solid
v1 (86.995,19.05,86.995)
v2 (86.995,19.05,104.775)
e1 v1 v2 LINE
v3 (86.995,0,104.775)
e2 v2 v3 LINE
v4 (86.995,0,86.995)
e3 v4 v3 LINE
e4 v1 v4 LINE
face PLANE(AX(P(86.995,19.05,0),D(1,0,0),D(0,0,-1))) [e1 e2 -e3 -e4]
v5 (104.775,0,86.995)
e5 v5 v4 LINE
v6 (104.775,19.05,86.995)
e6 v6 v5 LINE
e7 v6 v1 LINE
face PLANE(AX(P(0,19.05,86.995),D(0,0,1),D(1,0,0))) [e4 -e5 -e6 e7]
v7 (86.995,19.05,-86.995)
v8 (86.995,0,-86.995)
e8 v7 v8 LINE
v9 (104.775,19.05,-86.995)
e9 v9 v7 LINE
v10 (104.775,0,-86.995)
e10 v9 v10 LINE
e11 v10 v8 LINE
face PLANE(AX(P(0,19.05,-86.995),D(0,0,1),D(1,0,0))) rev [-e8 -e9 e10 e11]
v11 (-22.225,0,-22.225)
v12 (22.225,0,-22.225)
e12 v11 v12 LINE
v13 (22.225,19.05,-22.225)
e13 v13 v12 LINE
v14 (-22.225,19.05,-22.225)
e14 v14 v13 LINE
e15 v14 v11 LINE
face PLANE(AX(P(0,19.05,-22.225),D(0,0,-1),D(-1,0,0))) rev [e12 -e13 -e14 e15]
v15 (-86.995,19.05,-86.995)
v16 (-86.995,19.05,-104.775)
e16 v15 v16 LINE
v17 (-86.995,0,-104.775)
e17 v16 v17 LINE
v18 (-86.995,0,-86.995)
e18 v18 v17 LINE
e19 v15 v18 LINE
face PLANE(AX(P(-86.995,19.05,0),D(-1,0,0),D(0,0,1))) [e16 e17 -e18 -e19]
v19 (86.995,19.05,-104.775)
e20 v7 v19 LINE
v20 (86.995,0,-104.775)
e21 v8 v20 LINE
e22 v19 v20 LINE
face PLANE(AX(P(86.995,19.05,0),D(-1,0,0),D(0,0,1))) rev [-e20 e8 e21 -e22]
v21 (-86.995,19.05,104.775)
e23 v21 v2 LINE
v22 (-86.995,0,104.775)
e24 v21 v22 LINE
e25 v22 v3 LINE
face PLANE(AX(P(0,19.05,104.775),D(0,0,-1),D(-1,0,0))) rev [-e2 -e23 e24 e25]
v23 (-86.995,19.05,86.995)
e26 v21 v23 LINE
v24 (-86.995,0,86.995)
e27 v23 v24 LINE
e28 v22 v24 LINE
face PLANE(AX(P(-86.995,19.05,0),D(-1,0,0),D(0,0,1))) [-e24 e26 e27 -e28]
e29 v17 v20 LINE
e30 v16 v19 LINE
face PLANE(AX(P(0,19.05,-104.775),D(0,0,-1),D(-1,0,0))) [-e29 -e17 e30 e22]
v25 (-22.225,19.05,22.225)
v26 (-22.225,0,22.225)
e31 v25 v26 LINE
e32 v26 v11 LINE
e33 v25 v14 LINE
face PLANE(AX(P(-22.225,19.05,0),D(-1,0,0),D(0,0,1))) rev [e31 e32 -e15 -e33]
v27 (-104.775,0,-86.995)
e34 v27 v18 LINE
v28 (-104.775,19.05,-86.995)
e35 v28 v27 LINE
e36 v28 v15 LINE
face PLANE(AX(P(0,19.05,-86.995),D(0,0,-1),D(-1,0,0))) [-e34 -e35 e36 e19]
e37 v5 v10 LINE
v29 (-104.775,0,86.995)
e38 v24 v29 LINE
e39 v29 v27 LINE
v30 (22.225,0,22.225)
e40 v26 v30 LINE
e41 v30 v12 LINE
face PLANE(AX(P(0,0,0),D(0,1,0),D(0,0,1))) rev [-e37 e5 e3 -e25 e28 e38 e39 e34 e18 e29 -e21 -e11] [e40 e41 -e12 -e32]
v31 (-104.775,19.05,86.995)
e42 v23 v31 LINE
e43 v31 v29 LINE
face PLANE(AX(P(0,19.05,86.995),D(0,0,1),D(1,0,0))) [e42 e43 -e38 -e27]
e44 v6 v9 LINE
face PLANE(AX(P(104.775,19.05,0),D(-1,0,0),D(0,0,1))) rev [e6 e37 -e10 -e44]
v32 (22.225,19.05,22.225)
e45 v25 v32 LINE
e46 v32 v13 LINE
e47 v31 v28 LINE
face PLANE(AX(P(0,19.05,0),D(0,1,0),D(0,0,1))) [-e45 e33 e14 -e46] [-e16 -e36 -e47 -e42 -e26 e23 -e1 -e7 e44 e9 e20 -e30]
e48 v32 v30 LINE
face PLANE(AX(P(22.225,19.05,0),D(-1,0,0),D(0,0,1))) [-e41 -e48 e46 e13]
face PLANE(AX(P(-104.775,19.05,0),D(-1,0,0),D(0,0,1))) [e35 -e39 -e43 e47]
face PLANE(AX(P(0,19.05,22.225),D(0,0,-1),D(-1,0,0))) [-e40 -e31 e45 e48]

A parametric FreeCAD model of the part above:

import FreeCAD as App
import Part
import Sketcher
Q = App.Units.Quantity

doc = App.newDocument("Part")
body = doc.addObject("PartDesign::Body", "Body")

sketch1 = doc.addObject("Sketcher::SketchObject", "Sketch")
body.addObject(sketch1)
sketch1.AttachmentSupport = (doc.XZ_Plane, [""])
sketch1.MapMode = "FlatFace"
sketch1.addGeometry([
    Part.LineSegment(App.Vector(-87, -87, 0), App.Vector(-105, -87, 0)),
    Part.LineSegment(App.Vector(-105, -87, 0), App.Vector(-105, 87, 0)),
    Part.LineSegment(App.Vector(-105, 87, 0), App.Vector(-87, 87, 0)),
    Part.LineSegment(App.Vector(-87, 87, 0), App.Vector(-87, 105, 0)),
    Part.LineSegment(App.Vector(-87, 105, 0), App.Vector(87, 105, 0)),
    Part.LineSegment(App.Vector(87, 105, 0), App.Vector(87, 87, 0)),
    Part.LineSegment(App.Vector(87, 87, 0), App.Vector(105, 87, 0)),
    Part.LineSegment(App.Vector(105, 87, 0), App.Vector(105, -87, 0)),
    Part.LineSegment(App.Vector(105, -87, 0), App.Vector(87, -87, 0)),
    Part.LineSegment(App.Vector(87, -87, 0), App.Vector(87, -105, 0)),
    Part.LineSegment(App.Vector(87, -105, 0), App.Vector(-87, -105, 0)),
    Part.LineSegment(App.Vector(-87, -105, 0), App.Vector(-87, -87, 0)),
    Part.LineSegment(App.Vector(22, 22, 0), App.Vector(-22, 22, 0)),
    Part.LineSegment(App.Vector(-22, 22, 0), App.Vector(-22, -22, 0)),
    Part.LineSegment(App.Vector(-22, -22, 0), App.Vector(22, -22, 0)),
    Part.LineSegment(App.Vector(22, -22, 0), App.Vector(22, 22, 0)),
], False)
sketch1.addConstraint([
    Sketcher.Constraint("Coincident", 0, 2, 1, 1),
    Sketcher.Constraint("Coincident", 1, 2, 2, 1),
    Sketcher.Constraint("Coincident", 2, 2, 3, 1),
    Sketcher.Constraint("Coincident", 3, 2, 4, 1),
    Sketcher.Constraint("Coincident", 4, 2, 5, 1),
    Sketcher.Constraint("Coincident", 5, 2, 6, 1),
    Sketcher.Constraint("Coincident", 6, 2, 7, 1),
    Sketcher.Constraint("Coincident", 7, 2, 8, 1),
    Sketcher.Constraint("Coincident", 8, 2, 9, 1),
    Sketcher.Constraint("Coincident", 9, 2, 10, 1),
    Sketcher.Constraint("Coincident", 10, 2, 11, 1),
    Sketcher.Constraint("Coincident", 11, 2, 0, 1),
    Sketcher.Constraint("Coincident", 12, 2, 13, 1),
    Sketcher.Constraint("Coincident", 13, 2, 14, 1),
    Sketcher.Constraint("Coincident", 14, 2, 15, 1),
    Sketcher.Constraint("Coincident", 15, 2, 12, 1),
    Sketcher.Constraint("Horizontal", 0),
    Sketcher.Constraint("Vertical", 1),
    Sketcher.Constraint("Horizontal", 2),
    Sketcher.Constraint("Vertical", 3),
    Sketcher.Constraint("Horizontal", 4),
    Sketcher.Constraint("Vertical", 5),
    Sketcher.Constraint("Horizontal", 6),
    Sketcher.Constraint("Vertical", 7),
    Sketcher.Constraint("Horizontal", 8),
    Sketcher.Constraint("Vertical", 9),
    Sketcher.Constraint("Horizontal", 10),
    Sketcher.Constraint("Vertical", 11),
    Sketcher.Constraint("Horizontal", 12),
    Sketcher.Constraint("Vertical", 13),
    Sketcher.Constraint("Horizontal", 14),
    Sketcher.Constraint("Vertical", 15),
    Sketcher.Constraint("Symmetric", 0, 2, 6, 2, -1, 1),
    Sketcher.Constraint("Symmetric", 2, 2, 8, 2, -1, 1),
    Sketcher.Constraint("Symmetric", 4, 2, 10, 2, -1, 1),
    Sketcher.Constraint("Symmetric", 12, 2, 14, 2, -1, 1),
    Sketcher.Constraint("Symmetric", 2, 2, 5, 2, -2),
    Sketcher.Constraint("Equal", 10, 1),
    Sketcher.Constraint("Equal", 8, 3),
    Sketcher.Constraint("Equal", 14, 13),
    Sketcher.Constraint("DistanceX", 0, 2, 0, 1, Q("0.7 in")),
    Sketcher.Constraint("DistanceX", 4, 1, 4, 2, Q("6.85 in")),
    Sketcher.Constraint("DistanceX", 12, 2, 12, 1, Q("1.75 in")),
])
pad1 = doc.addObject("PartDesign::Pad", "Pad")
body.addObject(pad1)
pad1.Profile = sketch1
pad1.Length = Q("0.75 in")
pad1.Reversed = True

doc.recompute()
